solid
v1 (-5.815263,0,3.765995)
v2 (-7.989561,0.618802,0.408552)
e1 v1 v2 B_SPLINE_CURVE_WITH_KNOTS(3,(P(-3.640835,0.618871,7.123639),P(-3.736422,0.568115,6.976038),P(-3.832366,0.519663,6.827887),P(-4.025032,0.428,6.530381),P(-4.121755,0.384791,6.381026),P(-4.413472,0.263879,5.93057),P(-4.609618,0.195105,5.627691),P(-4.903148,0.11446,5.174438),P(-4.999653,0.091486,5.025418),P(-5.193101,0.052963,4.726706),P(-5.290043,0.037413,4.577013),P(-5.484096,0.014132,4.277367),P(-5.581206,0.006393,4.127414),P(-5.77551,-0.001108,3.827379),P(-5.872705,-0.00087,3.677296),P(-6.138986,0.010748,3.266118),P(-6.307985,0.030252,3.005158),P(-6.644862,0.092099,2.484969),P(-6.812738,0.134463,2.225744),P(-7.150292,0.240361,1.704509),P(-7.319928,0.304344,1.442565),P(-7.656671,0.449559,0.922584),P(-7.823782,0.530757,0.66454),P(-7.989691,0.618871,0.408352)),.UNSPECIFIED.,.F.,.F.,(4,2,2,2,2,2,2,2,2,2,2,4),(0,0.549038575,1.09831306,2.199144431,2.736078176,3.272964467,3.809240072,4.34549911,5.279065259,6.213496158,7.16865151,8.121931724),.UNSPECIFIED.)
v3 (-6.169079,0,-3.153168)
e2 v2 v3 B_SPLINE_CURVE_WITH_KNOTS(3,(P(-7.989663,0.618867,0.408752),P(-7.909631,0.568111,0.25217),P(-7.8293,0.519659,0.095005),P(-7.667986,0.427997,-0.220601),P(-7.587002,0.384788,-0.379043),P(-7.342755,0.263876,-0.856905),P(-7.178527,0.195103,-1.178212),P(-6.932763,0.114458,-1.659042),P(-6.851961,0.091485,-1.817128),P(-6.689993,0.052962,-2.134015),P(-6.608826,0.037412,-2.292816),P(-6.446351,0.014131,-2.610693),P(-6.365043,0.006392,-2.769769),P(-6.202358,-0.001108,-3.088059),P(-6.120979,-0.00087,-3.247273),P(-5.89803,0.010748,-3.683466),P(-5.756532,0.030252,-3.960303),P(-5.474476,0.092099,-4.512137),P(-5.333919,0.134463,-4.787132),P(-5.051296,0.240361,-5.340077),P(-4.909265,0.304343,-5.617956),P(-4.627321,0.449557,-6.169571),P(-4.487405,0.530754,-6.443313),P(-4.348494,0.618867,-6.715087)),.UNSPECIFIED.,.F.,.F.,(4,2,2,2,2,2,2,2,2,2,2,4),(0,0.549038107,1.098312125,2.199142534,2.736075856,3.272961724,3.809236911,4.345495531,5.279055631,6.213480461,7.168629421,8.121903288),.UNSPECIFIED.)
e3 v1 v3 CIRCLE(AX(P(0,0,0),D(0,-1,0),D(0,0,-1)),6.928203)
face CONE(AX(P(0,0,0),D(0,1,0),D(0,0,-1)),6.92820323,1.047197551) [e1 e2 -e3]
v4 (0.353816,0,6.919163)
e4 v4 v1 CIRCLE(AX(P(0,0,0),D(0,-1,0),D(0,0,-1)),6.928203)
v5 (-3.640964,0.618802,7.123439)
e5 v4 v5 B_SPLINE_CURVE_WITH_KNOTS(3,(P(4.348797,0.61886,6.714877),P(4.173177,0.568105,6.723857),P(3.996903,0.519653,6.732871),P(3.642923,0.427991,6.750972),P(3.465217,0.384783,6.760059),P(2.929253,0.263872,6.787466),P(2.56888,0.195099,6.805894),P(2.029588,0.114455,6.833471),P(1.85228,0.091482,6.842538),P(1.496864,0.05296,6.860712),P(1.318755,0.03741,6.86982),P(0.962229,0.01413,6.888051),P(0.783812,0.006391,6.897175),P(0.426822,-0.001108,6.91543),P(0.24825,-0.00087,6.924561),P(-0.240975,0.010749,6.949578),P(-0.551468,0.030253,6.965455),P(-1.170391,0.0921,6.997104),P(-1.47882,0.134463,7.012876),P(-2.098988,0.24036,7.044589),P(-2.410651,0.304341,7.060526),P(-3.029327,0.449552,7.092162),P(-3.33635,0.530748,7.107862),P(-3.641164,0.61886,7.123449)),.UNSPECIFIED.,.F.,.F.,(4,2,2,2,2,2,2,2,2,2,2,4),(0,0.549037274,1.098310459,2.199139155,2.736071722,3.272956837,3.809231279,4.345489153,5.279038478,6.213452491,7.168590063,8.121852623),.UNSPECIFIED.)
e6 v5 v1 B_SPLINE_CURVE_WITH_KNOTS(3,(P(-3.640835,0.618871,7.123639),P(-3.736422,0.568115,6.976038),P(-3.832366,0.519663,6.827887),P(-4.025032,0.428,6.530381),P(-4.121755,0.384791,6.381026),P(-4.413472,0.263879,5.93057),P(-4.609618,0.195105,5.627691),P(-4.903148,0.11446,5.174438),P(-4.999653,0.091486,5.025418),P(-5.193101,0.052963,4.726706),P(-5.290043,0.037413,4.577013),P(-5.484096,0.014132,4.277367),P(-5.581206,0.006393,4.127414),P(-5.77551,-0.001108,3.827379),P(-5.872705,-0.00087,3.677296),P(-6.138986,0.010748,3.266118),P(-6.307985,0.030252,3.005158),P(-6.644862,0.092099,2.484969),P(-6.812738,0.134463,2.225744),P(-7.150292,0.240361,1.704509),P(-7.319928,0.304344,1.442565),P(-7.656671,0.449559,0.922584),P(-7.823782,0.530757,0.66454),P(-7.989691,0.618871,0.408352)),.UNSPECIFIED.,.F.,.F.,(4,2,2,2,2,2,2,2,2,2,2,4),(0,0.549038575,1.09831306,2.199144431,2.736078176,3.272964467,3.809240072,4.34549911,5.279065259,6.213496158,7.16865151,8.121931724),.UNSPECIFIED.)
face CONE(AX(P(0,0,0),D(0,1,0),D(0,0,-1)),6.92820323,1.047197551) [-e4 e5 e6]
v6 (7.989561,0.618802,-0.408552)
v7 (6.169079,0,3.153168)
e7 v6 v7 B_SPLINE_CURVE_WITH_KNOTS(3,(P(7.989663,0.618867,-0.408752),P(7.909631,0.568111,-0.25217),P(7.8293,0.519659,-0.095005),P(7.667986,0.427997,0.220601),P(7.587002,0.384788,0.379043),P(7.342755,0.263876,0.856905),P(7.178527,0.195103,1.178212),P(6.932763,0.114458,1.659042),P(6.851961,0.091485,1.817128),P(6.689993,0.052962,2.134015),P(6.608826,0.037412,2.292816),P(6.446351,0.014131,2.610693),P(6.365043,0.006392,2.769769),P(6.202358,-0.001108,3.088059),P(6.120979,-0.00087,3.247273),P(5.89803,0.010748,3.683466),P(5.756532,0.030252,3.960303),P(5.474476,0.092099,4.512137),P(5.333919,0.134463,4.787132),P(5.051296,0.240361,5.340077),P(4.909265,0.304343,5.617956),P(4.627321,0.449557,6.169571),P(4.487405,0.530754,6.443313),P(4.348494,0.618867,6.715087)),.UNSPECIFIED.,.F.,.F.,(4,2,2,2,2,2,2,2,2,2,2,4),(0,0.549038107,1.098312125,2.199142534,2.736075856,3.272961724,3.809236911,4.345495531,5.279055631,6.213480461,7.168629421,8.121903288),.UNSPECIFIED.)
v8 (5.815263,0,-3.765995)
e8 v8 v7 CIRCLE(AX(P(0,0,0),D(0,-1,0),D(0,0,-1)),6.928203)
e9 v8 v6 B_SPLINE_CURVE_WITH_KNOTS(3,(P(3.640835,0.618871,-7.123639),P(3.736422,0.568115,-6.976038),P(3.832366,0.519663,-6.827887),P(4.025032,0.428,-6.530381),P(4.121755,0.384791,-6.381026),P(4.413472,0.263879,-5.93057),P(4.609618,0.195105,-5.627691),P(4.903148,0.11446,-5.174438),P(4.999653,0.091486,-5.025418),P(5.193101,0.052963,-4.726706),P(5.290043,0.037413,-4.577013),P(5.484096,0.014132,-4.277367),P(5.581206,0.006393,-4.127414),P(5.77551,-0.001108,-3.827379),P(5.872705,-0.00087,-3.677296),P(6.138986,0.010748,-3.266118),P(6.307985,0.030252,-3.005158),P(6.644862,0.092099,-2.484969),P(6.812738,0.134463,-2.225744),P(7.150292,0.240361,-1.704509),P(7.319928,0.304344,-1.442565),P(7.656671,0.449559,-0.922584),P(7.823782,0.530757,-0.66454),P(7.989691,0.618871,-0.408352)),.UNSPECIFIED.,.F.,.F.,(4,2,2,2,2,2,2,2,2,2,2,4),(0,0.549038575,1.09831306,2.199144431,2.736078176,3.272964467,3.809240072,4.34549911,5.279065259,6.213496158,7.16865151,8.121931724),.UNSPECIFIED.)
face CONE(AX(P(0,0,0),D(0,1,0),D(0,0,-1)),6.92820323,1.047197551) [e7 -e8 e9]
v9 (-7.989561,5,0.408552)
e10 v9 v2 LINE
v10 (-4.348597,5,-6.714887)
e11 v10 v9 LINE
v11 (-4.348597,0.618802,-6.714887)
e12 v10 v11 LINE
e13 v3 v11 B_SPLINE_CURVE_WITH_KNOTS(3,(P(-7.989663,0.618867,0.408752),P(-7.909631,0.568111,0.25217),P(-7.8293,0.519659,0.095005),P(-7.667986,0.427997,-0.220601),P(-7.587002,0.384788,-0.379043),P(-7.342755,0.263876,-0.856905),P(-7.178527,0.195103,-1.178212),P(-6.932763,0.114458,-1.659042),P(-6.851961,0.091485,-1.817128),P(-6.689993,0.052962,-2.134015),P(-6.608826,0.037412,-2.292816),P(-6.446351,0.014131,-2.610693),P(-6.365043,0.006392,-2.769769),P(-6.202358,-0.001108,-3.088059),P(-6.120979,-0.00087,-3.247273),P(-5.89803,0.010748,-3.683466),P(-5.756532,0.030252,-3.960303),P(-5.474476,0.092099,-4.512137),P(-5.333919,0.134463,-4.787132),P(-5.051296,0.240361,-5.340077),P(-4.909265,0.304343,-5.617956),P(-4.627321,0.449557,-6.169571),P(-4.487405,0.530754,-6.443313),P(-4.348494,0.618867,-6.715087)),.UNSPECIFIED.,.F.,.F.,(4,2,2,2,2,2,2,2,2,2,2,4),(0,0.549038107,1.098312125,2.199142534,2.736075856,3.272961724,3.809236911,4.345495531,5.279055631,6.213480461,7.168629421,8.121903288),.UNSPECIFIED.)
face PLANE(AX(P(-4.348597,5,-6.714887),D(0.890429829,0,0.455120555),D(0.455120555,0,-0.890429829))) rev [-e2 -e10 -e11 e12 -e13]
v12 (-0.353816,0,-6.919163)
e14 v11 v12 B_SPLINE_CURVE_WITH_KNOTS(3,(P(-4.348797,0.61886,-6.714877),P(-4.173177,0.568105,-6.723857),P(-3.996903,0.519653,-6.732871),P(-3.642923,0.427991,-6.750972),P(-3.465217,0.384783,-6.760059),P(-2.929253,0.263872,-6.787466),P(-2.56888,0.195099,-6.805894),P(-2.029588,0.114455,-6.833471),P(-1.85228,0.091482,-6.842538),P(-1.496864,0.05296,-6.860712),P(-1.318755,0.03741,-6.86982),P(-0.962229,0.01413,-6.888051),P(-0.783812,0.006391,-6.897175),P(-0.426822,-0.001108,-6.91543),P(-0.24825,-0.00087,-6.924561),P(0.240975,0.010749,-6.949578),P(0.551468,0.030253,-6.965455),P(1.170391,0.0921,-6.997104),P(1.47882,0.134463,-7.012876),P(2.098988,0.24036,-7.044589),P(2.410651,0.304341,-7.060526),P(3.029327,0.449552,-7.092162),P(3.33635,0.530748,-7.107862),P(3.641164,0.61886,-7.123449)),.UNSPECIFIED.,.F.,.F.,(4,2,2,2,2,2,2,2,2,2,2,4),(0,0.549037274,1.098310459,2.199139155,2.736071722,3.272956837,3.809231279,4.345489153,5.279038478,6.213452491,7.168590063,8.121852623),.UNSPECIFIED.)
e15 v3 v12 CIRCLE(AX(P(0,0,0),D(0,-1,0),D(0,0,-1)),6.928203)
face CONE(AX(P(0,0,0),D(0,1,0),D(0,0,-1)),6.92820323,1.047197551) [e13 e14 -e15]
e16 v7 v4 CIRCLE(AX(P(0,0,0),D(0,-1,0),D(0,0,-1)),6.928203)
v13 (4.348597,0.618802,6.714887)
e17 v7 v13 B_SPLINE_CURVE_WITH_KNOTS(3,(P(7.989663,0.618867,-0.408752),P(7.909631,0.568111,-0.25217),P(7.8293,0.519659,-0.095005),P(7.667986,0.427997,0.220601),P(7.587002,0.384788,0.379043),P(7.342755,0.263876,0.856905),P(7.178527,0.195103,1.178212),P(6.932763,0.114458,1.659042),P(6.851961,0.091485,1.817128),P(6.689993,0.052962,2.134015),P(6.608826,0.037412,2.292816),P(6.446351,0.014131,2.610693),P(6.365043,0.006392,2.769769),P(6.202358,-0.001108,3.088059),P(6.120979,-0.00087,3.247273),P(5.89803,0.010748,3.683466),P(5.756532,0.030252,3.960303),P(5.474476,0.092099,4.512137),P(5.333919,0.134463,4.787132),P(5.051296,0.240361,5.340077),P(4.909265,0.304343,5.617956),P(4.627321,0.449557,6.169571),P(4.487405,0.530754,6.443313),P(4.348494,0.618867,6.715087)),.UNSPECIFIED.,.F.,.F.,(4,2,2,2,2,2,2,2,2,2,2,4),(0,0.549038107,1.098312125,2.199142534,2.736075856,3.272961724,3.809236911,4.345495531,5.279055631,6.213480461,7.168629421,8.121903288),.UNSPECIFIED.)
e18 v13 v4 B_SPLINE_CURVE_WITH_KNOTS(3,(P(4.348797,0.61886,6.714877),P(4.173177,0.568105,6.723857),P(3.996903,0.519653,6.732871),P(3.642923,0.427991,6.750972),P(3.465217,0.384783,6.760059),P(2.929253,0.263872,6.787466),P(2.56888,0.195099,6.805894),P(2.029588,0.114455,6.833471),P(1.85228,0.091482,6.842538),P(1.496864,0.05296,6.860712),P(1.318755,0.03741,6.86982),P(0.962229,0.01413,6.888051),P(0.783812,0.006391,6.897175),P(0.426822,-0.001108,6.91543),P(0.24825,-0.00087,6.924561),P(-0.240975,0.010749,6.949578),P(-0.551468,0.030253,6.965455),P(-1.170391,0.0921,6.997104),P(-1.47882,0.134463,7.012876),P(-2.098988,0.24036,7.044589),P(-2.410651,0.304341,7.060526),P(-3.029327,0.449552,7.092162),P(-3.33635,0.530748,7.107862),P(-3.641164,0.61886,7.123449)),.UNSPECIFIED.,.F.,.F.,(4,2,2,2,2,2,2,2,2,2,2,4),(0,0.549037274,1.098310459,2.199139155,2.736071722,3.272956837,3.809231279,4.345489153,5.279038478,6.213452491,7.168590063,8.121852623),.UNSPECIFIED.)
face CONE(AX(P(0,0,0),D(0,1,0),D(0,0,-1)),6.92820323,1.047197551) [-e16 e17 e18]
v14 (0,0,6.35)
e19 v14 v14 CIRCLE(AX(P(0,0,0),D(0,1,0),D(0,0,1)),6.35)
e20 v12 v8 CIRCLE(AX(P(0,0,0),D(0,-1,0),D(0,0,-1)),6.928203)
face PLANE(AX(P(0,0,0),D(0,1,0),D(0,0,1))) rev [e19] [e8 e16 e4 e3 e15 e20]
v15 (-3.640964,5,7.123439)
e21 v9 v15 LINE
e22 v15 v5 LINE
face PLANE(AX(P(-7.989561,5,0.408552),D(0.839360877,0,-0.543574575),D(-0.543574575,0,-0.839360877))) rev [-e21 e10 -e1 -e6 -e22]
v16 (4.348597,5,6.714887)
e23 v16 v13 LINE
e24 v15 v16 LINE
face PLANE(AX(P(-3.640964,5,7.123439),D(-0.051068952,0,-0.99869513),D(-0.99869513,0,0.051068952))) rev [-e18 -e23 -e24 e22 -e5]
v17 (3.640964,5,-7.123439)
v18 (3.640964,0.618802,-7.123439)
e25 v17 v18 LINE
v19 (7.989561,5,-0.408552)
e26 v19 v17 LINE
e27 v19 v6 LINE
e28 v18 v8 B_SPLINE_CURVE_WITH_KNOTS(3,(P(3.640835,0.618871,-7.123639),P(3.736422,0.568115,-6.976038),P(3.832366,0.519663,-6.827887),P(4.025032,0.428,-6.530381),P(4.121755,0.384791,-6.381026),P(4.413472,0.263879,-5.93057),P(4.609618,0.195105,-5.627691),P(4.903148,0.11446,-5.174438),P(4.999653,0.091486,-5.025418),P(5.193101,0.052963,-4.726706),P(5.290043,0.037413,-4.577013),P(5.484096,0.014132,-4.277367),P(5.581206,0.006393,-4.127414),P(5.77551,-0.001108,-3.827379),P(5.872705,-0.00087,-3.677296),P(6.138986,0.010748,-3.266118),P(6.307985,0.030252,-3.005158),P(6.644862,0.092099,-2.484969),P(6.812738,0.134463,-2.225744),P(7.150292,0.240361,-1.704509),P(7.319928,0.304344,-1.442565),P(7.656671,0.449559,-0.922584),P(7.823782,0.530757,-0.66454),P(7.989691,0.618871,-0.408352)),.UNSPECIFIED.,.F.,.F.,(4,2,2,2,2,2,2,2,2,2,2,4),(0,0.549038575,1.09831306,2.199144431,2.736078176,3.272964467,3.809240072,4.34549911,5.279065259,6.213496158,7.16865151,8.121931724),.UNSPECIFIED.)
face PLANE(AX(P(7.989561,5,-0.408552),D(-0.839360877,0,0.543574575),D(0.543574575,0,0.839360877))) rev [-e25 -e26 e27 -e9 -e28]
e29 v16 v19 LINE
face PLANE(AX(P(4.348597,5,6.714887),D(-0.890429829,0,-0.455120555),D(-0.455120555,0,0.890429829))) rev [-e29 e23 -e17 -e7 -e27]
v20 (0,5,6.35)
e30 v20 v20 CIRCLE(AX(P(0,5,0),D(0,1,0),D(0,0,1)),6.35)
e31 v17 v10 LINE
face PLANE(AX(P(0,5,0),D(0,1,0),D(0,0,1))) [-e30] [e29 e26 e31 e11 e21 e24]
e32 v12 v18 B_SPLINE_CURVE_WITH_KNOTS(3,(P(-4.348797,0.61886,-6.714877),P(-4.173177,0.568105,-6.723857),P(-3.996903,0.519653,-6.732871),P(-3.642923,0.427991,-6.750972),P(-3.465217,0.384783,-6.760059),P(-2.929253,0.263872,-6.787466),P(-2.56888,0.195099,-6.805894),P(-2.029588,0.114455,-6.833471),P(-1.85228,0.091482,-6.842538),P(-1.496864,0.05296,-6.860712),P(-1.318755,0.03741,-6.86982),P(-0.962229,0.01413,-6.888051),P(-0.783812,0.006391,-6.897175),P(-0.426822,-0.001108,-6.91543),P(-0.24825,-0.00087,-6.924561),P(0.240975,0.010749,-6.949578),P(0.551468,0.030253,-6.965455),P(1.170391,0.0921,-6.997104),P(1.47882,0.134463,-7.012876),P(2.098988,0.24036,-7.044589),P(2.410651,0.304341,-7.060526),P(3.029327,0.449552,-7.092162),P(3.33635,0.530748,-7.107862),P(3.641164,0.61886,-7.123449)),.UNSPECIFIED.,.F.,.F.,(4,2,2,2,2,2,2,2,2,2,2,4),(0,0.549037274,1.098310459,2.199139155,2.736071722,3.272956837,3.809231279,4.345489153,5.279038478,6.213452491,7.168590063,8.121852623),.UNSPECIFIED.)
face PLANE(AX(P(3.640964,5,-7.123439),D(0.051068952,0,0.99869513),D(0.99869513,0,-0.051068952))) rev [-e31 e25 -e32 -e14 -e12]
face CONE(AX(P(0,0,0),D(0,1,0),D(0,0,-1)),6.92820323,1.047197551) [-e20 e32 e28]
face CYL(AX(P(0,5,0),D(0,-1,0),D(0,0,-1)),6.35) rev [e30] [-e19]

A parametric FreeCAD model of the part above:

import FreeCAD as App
import Part
import Sketcher


def add_polygon(sketch, points):
    """Adds a closed chain of lines whose ends are joined by coincident constraints."""
    first, n = sketch.GeometryCount, len(points)
    for a, b in zip(points, points[1:] + points[:1]):
        sketch.addGeometry(Part.LineSegment(App.Vector(*a, 0), App.Vector(*b, 0)), False)
    for i in range(n):
        sketch.addConstraint(Sketcher.Constraint("Coincident", first + i, 2, first + (i + 1) % n, 1))

doc = App.newDocument("Part")
body = doc.addObject("PartDesign::Body", "Body")

# Sketch on XZ plane
sketch1 = body.newObject("Sketcher::SketchObject", "Sketch")
sketch1.AttachmentSupport = (doc.getObject("XZ_Plane"), [""])
sketch1.MapMode = "FlatFace"
add_polygon(sketch1, [(3.640964, -7.123439), (-4.348597, -6.714887), (-7.989561, 0.408552), (-3.640964, 7.123439), (4.348597, 6.714887), (7.989561, -0.408552)])  # lines 0-5
sketch1.addGeometry(Part.Circle(App.Vector(0, 0, 0), App.Vector(0, 0, 1), 6.35), False)  # 6
sketch1.addConstraint(Sketcher.Constraint("Coincident", 6, 3, -1, 1))
sketch1.addConstraint(Sketcher.Constraint("Symmetric", 0, 2, 3, 2, -1, 1))
sketch1.addConstraint(Sketcher.Constraint("Symmetric", 1, 2, 4, 2, -1, 1))
sketch1.addConstraint(Sketcher.Constraint("Symmetric", 2, 2, 5, 2, -1, 1))
sketch1.addConstraint(Sketcher.Constraint("Equal", 0, 1))
sketch1.addConstraint(Sketcher.Constraint("Equal", 1, 2))
sketch1.addConstraint(Sketcher.Constraint("Diameter", 6, 12.7))
sketch1.addConstraint(Sketcher.Constraint("Distance", 0, 8.0))
sketch1.addConstraint(Sketcher.Constraint("DistanceX", 1, 2, -1, 1, 7.989561))
sketch1.addConstraint(Sketcher.Constraint("DistanceY", -1, 1, 1, 2, 0.408552))
sketch1.addConstraint(Sketcher.Constraint("DistanceY", -1, 1, 2, 2, 7.123439))
pad1 = body.newObject("PartDesign::Pad", "Pad")
pad1.Profile = sketch1
pad1.Length = 5
pad1.Reversed = True

# Sketch on XZ plane
sketch2 = body.newObject("Sketcher::SketchObject", "Sketch001")
sketch2.AttachmentSupport = (doc.getObject("XZ_Plane"), [""])
sketch2.MapMode = "FlatFace"
add_polygon(sketch2, [(-21.581, 20.714), (-21.581, -20.714), (21.581, -20.714), (21.581, 20.714)])  # lines 0-3
sketch2.addGeometry(Part.Circle(App.Vector(0, 0, 0), App.Vector(0, 0, 1), 6.928203), False)  # 4
sketch2.addConstraint(Sketcher.Constraint("Vertical", 0))
sketch2.addConstraint(Sketcher.Constraint("Horizontal", 1))
sketch2.addConstraint(Sketcher.Constraint("Vertical", 2))
sketch2.addConstraint(Sketcher.Constraint("Horizontal", 3))
sketch2.addConstraint(Sketcher.Constraint("Coincident", 4, 3, -1, 1))
sketch2.addConstraint(Sketcher.Constraint("Symmetric", 0, 2, 2, 2, -1, 1))
sketch2.addConstraint(Sketcher.Constraint("DistanceX", 1, 1, 1, 2, 43.162))
sketch2.addConstraint(Sketcher.Constraint("DistanceY", 0, 2, 0, 1, 41.428))
sketch2.addConstraint(Sketcher.Constraint("Diameter", 4, 13.856406))
pocket1 = body.newObject("PartDesign::Pocket", "Pocket")
pocket1.Profile = sketch2
pocket1.Length = 6
pocket1.TaperAngle = 60

doc.recompute()
